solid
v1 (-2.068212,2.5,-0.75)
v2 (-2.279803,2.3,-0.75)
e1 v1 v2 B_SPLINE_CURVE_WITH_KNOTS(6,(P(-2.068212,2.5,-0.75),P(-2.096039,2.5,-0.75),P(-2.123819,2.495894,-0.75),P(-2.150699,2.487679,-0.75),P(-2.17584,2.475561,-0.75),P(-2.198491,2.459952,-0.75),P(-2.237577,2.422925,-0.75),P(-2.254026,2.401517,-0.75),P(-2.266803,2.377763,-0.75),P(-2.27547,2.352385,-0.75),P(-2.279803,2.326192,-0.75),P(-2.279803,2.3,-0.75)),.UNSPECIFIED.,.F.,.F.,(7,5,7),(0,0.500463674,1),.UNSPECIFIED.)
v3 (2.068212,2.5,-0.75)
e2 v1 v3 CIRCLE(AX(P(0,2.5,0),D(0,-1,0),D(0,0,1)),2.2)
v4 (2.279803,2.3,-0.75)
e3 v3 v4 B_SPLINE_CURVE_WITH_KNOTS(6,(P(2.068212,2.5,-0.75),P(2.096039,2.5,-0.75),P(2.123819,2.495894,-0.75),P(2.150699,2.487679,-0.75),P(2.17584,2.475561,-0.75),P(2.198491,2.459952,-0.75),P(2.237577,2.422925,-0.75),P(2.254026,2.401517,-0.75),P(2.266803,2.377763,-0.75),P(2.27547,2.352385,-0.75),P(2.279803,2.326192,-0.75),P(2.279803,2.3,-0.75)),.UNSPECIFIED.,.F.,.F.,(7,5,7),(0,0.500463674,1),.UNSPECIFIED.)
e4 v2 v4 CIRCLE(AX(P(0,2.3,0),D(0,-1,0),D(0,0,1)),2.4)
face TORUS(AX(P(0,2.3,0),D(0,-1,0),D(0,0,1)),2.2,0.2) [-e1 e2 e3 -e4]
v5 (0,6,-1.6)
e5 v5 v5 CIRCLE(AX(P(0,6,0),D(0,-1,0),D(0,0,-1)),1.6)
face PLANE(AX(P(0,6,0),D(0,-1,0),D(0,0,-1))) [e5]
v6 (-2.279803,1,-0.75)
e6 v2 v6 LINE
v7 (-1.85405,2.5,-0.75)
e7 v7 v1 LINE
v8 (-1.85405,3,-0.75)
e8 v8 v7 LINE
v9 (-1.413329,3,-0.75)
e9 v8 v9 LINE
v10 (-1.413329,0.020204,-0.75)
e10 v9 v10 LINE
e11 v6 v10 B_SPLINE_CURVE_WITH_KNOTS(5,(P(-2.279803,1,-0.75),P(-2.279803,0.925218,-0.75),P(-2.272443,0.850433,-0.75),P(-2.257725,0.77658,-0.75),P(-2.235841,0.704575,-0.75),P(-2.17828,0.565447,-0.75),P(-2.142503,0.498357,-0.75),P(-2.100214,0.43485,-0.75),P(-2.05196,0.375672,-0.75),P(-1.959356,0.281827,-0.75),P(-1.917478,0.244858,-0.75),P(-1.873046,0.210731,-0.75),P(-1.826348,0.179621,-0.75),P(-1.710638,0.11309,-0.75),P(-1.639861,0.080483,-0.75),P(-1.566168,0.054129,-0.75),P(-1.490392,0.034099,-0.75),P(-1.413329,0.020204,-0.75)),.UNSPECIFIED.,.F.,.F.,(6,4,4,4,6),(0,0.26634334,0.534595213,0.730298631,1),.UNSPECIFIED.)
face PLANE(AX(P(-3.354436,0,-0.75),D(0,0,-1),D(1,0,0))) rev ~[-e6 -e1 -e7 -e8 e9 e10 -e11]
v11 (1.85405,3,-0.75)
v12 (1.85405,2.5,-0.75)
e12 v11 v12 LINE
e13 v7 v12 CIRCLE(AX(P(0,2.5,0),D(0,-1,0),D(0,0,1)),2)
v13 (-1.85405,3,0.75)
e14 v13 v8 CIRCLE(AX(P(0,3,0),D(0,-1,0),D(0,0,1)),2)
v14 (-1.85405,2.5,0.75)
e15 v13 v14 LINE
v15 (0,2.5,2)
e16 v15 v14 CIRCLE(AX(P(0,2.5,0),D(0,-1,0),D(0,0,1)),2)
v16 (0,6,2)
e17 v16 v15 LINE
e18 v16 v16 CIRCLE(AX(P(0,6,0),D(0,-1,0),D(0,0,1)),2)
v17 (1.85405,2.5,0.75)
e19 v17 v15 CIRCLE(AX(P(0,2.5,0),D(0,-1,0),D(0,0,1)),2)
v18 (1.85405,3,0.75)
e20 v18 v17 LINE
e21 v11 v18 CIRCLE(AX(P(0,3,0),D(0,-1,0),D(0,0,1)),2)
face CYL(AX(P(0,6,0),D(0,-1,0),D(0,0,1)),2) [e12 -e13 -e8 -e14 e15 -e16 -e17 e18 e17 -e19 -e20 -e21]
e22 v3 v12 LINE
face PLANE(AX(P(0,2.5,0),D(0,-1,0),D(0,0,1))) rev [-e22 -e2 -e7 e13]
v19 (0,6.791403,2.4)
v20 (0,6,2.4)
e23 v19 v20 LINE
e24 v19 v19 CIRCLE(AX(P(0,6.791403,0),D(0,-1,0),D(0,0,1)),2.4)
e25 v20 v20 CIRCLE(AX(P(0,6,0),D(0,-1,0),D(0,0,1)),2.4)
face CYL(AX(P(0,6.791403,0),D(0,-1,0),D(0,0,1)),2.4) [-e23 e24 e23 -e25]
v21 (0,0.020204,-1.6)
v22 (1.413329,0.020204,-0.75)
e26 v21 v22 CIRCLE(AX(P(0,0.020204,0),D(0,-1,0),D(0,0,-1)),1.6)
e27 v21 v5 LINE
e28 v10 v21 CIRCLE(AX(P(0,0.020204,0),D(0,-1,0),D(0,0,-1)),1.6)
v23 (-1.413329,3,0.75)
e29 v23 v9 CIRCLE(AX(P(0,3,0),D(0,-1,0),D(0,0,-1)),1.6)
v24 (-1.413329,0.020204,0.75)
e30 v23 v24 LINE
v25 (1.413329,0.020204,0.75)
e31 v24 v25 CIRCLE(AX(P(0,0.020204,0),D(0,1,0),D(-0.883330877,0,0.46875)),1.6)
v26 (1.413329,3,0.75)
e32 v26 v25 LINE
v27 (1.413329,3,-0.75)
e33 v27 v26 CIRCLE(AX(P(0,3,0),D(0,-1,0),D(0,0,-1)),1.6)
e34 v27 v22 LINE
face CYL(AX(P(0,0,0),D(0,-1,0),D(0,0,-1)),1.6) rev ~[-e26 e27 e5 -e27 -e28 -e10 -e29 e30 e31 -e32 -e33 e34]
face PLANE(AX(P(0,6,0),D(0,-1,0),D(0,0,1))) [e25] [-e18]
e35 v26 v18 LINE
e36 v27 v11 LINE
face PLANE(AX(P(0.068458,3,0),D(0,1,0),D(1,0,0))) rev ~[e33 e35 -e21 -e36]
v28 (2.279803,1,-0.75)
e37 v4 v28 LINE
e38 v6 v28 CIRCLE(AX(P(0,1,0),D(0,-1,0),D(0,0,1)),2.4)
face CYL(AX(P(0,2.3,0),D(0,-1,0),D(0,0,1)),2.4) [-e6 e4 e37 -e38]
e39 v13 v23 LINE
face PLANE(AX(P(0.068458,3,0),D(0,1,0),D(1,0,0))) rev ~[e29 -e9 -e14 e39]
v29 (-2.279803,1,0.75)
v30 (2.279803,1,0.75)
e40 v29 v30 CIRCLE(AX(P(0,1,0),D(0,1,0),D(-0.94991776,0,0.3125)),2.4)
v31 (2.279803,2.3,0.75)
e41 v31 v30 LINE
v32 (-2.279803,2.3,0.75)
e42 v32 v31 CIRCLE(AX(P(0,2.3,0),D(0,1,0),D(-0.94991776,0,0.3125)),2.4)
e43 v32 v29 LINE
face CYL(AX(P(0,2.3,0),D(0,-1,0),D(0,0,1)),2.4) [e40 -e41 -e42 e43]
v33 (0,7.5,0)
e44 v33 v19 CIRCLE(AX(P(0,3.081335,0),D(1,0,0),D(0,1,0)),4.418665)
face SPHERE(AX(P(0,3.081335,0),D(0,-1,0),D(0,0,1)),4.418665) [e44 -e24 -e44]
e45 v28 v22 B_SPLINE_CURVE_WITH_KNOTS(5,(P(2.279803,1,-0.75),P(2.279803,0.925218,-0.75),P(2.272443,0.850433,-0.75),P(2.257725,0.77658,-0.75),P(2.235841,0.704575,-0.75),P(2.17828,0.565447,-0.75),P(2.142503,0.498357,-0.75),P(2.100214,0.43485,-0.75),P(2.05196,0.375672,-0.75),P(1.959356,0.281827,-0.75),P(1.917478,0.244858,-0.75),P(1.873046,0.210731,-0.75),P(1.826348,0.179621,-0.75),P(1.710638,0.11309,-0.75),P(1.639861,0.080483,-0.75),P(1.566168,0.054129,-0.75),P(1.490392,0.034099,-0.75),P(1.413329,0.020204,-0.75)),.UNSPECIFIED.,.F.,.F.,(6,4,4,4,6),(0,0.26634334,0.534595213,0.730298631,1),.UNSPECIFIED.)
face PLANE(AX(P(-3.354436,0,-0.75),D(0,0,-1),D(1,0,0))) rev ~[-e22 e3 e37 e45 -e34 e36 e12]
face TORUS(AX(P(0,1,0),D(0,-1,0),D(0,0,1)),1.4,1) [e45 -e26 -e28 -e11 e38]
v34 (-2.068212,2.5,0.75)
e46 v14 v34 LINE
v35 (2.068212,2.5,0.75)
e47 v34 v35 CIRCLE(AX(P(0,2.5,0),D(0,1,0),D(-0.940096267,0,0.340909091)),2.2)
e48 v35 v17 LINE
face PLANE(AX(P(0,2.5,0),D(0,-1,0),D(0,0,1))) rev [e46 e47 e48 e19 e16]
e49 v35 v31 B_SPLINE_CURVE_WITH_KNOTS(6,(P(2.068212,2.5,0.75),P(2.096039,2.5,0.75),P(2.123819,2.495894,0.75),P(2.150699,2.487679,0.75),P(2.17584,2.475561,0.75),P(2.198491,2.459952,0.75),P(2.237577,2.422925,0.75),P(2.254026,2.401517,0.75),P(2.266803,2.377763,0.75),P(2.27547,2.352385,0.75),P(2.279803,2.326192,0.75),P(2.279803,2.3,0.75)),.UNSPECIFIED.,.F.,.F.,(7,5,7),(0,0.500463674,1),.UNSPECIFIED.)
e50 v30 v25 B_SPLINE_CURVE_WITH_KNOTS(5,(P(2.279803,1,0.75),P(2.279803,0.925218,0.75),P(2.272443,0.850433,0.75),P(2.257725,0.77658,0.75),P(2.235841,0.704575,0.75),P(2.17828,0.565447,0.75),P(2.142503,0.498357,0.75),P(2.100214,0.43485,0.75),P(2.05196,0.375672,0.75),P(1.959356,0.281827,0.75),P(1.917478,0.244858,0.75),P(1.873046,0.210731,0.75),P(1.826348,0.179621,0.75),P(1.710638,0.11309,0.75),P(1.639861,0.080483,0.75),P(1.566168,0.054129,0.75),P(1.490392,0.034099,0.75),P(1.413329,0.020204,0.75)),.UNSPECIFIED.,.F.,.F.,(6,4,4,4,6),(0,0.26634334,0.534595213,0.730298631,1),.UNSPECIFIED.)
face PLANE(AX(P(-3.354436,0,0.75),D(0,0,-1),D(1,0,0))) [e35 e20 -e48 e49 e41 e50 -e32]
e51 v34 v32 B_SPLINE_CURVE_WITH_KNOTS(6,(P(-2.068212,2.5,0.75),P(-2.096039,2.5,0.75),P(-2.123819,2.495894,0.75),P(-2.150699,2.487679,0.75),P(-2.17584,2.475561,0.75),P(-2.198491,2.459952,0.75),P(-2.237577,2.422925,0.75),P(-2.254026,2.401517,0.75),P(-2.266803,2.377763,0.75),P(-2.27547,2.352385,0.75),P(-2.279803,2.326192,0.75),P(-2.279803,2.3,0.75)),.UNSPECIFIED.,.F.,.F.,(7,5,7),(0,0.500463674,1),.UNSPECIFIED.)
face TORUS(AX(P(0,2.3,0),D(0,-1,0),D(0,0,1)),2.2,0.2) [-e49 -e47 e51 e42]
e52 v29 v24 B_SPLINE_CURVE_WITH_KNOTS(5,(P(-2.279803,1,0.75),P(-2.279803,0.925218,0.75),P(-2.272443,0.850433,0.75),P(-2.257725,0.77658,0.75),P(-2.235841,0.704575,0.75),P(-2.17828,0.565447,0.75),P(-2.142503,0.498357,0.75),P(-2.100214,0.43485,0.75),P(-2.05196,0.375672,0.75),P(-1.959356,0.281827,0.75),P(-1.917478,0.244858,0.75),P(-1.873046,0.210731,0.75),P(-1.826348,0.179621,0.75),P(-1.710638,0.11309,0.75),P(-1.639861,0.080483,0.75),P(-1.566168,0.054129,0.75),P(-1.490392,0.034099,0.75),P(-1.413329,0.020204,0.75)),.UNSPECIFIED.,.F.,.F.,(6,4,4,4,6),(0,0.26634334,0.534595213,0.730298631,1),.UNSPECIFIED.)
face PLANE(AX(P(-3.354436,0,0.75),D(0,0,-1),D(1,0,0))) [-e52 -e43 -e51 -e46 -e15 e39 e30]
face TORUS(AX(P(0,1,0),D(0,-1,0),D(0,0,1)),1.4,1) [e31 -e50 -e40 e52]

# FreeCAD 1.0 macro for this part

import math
import FreeCAD as App
import Part
import Sketcher
from FreeCAD import Vector


def add_polygon(sketch, points):
    """Adds a closed chain of lines whose ends are joined by coincident constraints."""
    first, n = sketch.GeometryCount, len(points)
    for a, b in zip(points, points[1:] + points[:1]):
        sketch.addGeometry(Part.LineSegment(App.Vector(*a, 0), App.Vector(*b, 0)), False)
    for i in range(n):
        sketch.addConstraint(Sketcher.Constraint("Coincident", first + i, 2, first + (i + 1) % n, 1))

doc = App.newDocument("Part")
body = doc.addObject("PartDesign::Body", "Body")

# Sketch on YZ plane
sketch1 = body.newObject("Sketcher::SketchObject", "Sketch")
sketch1.AttachmentSupport = (doc.getObject("YZ_Plane"), [""])
sketch1.MapMode = "FlatFace"
sketch1.addGeometry([
    Part.LineSegment(Vector(6, -2.4, 0), Vector(6.791403, -2.4, 0)),  # 0
    Part.ArcOfCircle(Part.Circle(Vector(3.081335, 0, 0), Vector(0, 0, 1), 4.418665), math.radians(-32.898361), math.radians(0)),  # 1
    Part.LineSegment(Vector(7.5, 0, 0), Vector(0, 0, 0)),  # 2
    Part.LineSegment(Vector(0, 0, 0), Vector(0, -1.4, 0)),  # 3
    Part.ArcOfCircle(Part.Circle(Vector(1, -1.4, 0), Vector(0, 0, 1), 1), math.radians(-180), math.radians(-90)),  # 4
    Part.LineSegment(Vector(1, -2.4, 0), Vector(2.3, -2.4, 0)),  # 5
    Part.ArcOfCircle(Part.Circle(Vector(2.3, -2.2, 0), Vector(0, 0, 1), 0.2), math.radians(-90), math.radians(0)),  # 6
    Part.LineSegment(Vector(2.5, -2.2, 0), Vector(2.5, -2, 0)),  # 7
    Part.LineSegment(Vector(2.5, -2, 0), Vector(6, -2, 0)),  # 8
    Part.LineSegment(Vector(6, -2, 0), Vector(6, -2.4, 0)),  # 9
], False)
sketch1.addConstraint([
    Sketcher.Constraint("Coincident", 0, 2, 1, 1),
    Sketcher.Constraint("Coincident", 1, 2, 2, 1),
    Sketcher.Constraint("Coincident", 2, 2, 3, 1),
    Sketcher.Constraint("Tangent", 3, 2, 4, 1),
    Sketcher.Constraint("Tangent", 4, 2, 5, 1),
    Sketcher.Constraint("Tangent", 5, 2, 6, 1),
    Sketcher.Constraint("Tangent", 6, 2, 7, 1),
    Sketcher.Constraint("Coincident", 7, 2, 8, 1),
    Sketcher.Constraint("Coincident", 8, 2, 9, 1),
    Sketcher.Constraint("Coincident", 9, 2, 0, 1),
    Sketcher.Constraint("Horizontal", 0),
    Sketcher.Constraint("Horizontal", 2),
    Sketcher.Constraint("Vertical", 3),
    Sketcher.Constraint("Horizontal", 5),
    Sketcher.Constraint("Vertical", 7),
    Sketcher.Constraint("Horizontal", 8),
    Sketcher.Constraint("Vertical", 9),
    Sketcher.Constraint("Coincident", 2, 2, -1, 1),
    Sketcher.Constraint("PointOnObject", 1, 3, -1),
    Sketcher.Constraint("Horizontal", 0, 2, 4, 2),
    Sketcher.Constraint("Radius", 4, 1.0),
    Sketcher.Constraint("Radius", 6, 0.2),
    Sketcher.Constraint("DistanceX", 2, 2, 2, 1, 7.5),
    Sketcher.Constraint("DistanceX", 5, 1, 5, 2, 1.3),
    Sketcher.Constraint("DistanceX", 8, 1, 8, 2, 3.5),
    Sketcher.Constraint("DistanceY", 3, 2, 3, 1, 1.4),
    Sketcher.Constraint("DistanceY", 7, 1, 7, 2, 0.2),
    Sketcher.Constraint("Radius", 1, 4.418665),
])
revolution = body.newObject("PartDesign::Revolution", "Revolution")
revolution.Profile = sketch1
revolution.ReferenceAxis = (sketch1, ["H_Axis"])
revolution.Angle = 360

# Sketch on XZ plane
sketch2 = body.newObject("Sketcher::SketchObject", "Sketch001")
sketch2.AttachmentSupport = (doc.getObject("XZ_Plane"), [""])
sketch2.MapMode = "FlatFace"
sketch2.addGeometry(Part.Circle(Vector(0, 0, 0), Vector(0, 0, 1), 1.6), False)
sketch2.addConstraint([
    Sketcher.Constraint("Coincident", 0, 3, -1, 1),
    Sketcher.Constraint("Diameter", 0, 3.2),
])
pocket1 = body.newObject("PartDesign::Pocket", "Pocket")
pocket1.Profile = sketch2
pocket1.Length = 6

# Sketch on XZ plane
sketch3 = body.newObject("Sketcher::SketchObject", "Sketch002")
sketch3.AttachmentSupport = (doc.getObject("XZ_Plane"), [""])
sketch3.MapMode = "FlatFace"
add_polygon(sketch3, [(-3.354436, -0.75), (-3.354436, 0.75), (3.491351, 0.75), (3.491351, -0.75)])  # lines 0-3
sketch3.addConstraint([
    Sketcher.Constraint("Vertical", 0),
    Sketcher.Constraint("Horizontal", 1),
    Sketcher.Constraint("Vertical", 2),
    Sketcher.Constraint("Horizontal", 3),
    Sketcher.Constraint("DistanceY", 0, 1, 0, 2, 1.5),
    Sketcher.Constraint("DistanceY", -1, 1, 0, 2, 0.75),
    Sketcher.Constraint("DistanceX", 1, 1, 1, 2, 6.845787),
    Sketcher.Constraint("DistanceX", -1, 1, 1, 2, 3.491351),
])
pocket2 = body.newObject("PartDesign::Pocket", "Pocket001")
pocket2.Profile = sketch3
pocket2.Length = 3

doc.recompute()
